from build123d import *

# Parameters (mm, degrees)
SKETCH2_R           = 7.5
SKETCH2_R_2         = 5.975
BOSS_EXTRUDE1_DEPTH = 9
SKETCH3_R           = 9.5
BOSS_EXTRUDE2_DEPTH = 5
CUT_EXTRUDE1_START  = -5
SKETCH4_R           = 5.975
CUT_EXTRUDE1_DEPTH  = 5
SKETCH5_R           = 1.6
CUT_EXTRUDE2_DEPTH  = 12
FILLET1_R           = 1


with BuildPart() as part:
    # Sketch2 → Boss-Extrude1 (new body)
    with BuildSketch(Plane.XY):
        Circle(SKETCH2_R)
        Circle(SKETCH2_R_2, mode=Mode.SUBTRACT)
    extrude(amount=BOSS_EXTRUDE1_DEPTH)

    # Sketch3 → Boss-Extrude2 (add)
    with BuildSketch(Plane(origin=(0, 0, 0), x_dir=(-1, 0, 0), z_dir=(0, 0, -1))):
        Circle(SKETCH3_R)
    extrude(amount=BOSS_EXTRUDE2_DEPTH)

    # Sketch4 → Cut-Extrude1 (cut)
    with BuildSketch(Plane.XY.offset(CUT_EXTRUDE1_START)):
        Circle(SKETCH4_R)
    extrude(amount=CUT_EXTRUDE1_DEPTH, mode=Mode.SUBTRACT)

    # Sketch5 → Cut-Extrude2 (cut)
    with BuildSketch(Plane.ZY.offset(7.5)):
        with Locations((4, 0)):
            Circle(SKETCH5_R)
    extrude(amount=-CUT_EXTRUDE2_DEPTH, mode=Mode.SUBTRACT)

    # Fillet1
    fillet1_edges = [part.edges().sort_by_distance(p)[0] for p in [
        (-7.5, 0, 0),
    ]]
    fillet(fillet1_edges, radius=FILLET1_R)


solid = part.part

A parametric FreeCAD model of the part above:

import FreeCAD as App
import Part
import Sketcher

V = App.Vector
Q = App.Units.Quantity


def edges_at(feature, points):
    """Names of the edges that pass closest to the given points."""
    edges = feature.Shape.Edges
    near = lambda p: min(range(len(edges)), key=lambda i: edges[i].distToShape(Part.Vertex(*p))[0])
    return sorted({f"Edge{near(p) + 1}" for p in points})

doc = App.newDocument("Part")
body = doc.addObject("PartDesign::Body", "Body")

# Sketch on XY plane
sketch1 = body.newObject("Sketcher::SketchObject", "Sketch")
sketch1.AttachmentSupport = (doc.getObject("XY_Plane"), [""])
sketch1.MapMode = "FlatFace"
sketch1.addGeometry([
    Part.Circle(V(0, 0, 0), V(0, 0, 1), 8),
    Part.Circle(V(0, 0, 0), V(0, 0, 1), 6),
], False)
sketch1.addConstraint([
    Sketcher.Constraint("Coincident", 0, 3, -1, 1),
    Sketcher.Constraint("Coincident", 1, 3, -1, 1),
    Sketcher.Constraint("Diameter", 0, Q("15 mm")),
    Sketcher.Constraint("Diameter", 1, Q("11.95 mm")),
])
pad1 = body.newObject("PartDesign::Pad", "Pad")
pad1.Profile = sketch1
pad1.Length = 9

# Sketch on XY plane
sketch2 = body.newObject("Sketcher::SketchObject", "Sketch001")
sketch2.AttachmentSupport = (doc.getObject("XY_Plane"), [""])
sketch2.MapMode = "FlatFace"
sketch2.addGeometry(Part.Circle(V(0, 0, 0), V(0, 0, 1), 10), False)
sketch2.addConstraint([
    Sketcher.Constraint("Coincident", 0, 3, -1, 1),
    Sketcher.Constraint("Diameter", 0, Q("19 mm")),
])
pad2 = body.newObject("PartDesign::Pad", "Pad001")
pad2.Profile = sketch2
pad2.Length = 5
pad2.Reversed = True

# Sketch on XY plane
sketch3 = body.newObject("Sketcher::SketchObject", "Sketch002")
sketch3.AttachmentSupport = (doc.getObject("XY_Plane"), [""])
sketch3.MapMode = "FlatFace"
sketch3.AttachmentOffset = App.Placement(V(0, 0, -5), App.Rotation())
sketch3.addGeometry(Part.Circle(V(0, 0, 0), V(0, 0, 1), 6), False)
sketch3.addConstraint([
    Sketcher.Constraint("Coincident", 0, 3, -1, 1),
    Sketcher.Constraint("Diameter", 0, Q("11.95 mm")),
])
pocket1 = body.newObject("PartDesign::Pocket", "Pocket")
pocket1.Profile = sketch3
pocket1.Length = 5
pocket1.Reversed = True

# Sketch on YZ plane
sketch4 = body.newObject("Sketcher::SketchObject", "Sketch003")
sketch4.AttachmentSupport = (doc.getObject("YZ_Plane"), [""])
sketch4.MapMode = "FlatFace"
sketch4.AttachmentOffset = App.Placement(V(0, 0, -7.5), App.Rotation())
sketch4.addGeometry(Part.Circle(V(0, 4, 0), V(0, 0, 1), 1.6), False)
sketch4.addConstraint([
    Sketcher.Constraint("PointOnObject", 0, 3, -2),
    Sketcher.Constraint("Diameter", 0, Q("3.2 mm")),
    Sketcher.Constraint("DistanceY", -1, 1, 0, 3, Q("4 mm")),
])
pocket2 = body.newObject("PartDesign::Pocket", "Pocket001")
pocket2.Profile = sketch4
pocket2.Length = 12
pocket2.Reversed = True
doc.recompute()

fillet = body.newObject("PartDesign::Fillet", "Fillet")
fillet.Base = (pocket2, edges_at(pocket2, [(-7.5, 0, 0)]))
fillet.Radius = 1

doc.recompute()
